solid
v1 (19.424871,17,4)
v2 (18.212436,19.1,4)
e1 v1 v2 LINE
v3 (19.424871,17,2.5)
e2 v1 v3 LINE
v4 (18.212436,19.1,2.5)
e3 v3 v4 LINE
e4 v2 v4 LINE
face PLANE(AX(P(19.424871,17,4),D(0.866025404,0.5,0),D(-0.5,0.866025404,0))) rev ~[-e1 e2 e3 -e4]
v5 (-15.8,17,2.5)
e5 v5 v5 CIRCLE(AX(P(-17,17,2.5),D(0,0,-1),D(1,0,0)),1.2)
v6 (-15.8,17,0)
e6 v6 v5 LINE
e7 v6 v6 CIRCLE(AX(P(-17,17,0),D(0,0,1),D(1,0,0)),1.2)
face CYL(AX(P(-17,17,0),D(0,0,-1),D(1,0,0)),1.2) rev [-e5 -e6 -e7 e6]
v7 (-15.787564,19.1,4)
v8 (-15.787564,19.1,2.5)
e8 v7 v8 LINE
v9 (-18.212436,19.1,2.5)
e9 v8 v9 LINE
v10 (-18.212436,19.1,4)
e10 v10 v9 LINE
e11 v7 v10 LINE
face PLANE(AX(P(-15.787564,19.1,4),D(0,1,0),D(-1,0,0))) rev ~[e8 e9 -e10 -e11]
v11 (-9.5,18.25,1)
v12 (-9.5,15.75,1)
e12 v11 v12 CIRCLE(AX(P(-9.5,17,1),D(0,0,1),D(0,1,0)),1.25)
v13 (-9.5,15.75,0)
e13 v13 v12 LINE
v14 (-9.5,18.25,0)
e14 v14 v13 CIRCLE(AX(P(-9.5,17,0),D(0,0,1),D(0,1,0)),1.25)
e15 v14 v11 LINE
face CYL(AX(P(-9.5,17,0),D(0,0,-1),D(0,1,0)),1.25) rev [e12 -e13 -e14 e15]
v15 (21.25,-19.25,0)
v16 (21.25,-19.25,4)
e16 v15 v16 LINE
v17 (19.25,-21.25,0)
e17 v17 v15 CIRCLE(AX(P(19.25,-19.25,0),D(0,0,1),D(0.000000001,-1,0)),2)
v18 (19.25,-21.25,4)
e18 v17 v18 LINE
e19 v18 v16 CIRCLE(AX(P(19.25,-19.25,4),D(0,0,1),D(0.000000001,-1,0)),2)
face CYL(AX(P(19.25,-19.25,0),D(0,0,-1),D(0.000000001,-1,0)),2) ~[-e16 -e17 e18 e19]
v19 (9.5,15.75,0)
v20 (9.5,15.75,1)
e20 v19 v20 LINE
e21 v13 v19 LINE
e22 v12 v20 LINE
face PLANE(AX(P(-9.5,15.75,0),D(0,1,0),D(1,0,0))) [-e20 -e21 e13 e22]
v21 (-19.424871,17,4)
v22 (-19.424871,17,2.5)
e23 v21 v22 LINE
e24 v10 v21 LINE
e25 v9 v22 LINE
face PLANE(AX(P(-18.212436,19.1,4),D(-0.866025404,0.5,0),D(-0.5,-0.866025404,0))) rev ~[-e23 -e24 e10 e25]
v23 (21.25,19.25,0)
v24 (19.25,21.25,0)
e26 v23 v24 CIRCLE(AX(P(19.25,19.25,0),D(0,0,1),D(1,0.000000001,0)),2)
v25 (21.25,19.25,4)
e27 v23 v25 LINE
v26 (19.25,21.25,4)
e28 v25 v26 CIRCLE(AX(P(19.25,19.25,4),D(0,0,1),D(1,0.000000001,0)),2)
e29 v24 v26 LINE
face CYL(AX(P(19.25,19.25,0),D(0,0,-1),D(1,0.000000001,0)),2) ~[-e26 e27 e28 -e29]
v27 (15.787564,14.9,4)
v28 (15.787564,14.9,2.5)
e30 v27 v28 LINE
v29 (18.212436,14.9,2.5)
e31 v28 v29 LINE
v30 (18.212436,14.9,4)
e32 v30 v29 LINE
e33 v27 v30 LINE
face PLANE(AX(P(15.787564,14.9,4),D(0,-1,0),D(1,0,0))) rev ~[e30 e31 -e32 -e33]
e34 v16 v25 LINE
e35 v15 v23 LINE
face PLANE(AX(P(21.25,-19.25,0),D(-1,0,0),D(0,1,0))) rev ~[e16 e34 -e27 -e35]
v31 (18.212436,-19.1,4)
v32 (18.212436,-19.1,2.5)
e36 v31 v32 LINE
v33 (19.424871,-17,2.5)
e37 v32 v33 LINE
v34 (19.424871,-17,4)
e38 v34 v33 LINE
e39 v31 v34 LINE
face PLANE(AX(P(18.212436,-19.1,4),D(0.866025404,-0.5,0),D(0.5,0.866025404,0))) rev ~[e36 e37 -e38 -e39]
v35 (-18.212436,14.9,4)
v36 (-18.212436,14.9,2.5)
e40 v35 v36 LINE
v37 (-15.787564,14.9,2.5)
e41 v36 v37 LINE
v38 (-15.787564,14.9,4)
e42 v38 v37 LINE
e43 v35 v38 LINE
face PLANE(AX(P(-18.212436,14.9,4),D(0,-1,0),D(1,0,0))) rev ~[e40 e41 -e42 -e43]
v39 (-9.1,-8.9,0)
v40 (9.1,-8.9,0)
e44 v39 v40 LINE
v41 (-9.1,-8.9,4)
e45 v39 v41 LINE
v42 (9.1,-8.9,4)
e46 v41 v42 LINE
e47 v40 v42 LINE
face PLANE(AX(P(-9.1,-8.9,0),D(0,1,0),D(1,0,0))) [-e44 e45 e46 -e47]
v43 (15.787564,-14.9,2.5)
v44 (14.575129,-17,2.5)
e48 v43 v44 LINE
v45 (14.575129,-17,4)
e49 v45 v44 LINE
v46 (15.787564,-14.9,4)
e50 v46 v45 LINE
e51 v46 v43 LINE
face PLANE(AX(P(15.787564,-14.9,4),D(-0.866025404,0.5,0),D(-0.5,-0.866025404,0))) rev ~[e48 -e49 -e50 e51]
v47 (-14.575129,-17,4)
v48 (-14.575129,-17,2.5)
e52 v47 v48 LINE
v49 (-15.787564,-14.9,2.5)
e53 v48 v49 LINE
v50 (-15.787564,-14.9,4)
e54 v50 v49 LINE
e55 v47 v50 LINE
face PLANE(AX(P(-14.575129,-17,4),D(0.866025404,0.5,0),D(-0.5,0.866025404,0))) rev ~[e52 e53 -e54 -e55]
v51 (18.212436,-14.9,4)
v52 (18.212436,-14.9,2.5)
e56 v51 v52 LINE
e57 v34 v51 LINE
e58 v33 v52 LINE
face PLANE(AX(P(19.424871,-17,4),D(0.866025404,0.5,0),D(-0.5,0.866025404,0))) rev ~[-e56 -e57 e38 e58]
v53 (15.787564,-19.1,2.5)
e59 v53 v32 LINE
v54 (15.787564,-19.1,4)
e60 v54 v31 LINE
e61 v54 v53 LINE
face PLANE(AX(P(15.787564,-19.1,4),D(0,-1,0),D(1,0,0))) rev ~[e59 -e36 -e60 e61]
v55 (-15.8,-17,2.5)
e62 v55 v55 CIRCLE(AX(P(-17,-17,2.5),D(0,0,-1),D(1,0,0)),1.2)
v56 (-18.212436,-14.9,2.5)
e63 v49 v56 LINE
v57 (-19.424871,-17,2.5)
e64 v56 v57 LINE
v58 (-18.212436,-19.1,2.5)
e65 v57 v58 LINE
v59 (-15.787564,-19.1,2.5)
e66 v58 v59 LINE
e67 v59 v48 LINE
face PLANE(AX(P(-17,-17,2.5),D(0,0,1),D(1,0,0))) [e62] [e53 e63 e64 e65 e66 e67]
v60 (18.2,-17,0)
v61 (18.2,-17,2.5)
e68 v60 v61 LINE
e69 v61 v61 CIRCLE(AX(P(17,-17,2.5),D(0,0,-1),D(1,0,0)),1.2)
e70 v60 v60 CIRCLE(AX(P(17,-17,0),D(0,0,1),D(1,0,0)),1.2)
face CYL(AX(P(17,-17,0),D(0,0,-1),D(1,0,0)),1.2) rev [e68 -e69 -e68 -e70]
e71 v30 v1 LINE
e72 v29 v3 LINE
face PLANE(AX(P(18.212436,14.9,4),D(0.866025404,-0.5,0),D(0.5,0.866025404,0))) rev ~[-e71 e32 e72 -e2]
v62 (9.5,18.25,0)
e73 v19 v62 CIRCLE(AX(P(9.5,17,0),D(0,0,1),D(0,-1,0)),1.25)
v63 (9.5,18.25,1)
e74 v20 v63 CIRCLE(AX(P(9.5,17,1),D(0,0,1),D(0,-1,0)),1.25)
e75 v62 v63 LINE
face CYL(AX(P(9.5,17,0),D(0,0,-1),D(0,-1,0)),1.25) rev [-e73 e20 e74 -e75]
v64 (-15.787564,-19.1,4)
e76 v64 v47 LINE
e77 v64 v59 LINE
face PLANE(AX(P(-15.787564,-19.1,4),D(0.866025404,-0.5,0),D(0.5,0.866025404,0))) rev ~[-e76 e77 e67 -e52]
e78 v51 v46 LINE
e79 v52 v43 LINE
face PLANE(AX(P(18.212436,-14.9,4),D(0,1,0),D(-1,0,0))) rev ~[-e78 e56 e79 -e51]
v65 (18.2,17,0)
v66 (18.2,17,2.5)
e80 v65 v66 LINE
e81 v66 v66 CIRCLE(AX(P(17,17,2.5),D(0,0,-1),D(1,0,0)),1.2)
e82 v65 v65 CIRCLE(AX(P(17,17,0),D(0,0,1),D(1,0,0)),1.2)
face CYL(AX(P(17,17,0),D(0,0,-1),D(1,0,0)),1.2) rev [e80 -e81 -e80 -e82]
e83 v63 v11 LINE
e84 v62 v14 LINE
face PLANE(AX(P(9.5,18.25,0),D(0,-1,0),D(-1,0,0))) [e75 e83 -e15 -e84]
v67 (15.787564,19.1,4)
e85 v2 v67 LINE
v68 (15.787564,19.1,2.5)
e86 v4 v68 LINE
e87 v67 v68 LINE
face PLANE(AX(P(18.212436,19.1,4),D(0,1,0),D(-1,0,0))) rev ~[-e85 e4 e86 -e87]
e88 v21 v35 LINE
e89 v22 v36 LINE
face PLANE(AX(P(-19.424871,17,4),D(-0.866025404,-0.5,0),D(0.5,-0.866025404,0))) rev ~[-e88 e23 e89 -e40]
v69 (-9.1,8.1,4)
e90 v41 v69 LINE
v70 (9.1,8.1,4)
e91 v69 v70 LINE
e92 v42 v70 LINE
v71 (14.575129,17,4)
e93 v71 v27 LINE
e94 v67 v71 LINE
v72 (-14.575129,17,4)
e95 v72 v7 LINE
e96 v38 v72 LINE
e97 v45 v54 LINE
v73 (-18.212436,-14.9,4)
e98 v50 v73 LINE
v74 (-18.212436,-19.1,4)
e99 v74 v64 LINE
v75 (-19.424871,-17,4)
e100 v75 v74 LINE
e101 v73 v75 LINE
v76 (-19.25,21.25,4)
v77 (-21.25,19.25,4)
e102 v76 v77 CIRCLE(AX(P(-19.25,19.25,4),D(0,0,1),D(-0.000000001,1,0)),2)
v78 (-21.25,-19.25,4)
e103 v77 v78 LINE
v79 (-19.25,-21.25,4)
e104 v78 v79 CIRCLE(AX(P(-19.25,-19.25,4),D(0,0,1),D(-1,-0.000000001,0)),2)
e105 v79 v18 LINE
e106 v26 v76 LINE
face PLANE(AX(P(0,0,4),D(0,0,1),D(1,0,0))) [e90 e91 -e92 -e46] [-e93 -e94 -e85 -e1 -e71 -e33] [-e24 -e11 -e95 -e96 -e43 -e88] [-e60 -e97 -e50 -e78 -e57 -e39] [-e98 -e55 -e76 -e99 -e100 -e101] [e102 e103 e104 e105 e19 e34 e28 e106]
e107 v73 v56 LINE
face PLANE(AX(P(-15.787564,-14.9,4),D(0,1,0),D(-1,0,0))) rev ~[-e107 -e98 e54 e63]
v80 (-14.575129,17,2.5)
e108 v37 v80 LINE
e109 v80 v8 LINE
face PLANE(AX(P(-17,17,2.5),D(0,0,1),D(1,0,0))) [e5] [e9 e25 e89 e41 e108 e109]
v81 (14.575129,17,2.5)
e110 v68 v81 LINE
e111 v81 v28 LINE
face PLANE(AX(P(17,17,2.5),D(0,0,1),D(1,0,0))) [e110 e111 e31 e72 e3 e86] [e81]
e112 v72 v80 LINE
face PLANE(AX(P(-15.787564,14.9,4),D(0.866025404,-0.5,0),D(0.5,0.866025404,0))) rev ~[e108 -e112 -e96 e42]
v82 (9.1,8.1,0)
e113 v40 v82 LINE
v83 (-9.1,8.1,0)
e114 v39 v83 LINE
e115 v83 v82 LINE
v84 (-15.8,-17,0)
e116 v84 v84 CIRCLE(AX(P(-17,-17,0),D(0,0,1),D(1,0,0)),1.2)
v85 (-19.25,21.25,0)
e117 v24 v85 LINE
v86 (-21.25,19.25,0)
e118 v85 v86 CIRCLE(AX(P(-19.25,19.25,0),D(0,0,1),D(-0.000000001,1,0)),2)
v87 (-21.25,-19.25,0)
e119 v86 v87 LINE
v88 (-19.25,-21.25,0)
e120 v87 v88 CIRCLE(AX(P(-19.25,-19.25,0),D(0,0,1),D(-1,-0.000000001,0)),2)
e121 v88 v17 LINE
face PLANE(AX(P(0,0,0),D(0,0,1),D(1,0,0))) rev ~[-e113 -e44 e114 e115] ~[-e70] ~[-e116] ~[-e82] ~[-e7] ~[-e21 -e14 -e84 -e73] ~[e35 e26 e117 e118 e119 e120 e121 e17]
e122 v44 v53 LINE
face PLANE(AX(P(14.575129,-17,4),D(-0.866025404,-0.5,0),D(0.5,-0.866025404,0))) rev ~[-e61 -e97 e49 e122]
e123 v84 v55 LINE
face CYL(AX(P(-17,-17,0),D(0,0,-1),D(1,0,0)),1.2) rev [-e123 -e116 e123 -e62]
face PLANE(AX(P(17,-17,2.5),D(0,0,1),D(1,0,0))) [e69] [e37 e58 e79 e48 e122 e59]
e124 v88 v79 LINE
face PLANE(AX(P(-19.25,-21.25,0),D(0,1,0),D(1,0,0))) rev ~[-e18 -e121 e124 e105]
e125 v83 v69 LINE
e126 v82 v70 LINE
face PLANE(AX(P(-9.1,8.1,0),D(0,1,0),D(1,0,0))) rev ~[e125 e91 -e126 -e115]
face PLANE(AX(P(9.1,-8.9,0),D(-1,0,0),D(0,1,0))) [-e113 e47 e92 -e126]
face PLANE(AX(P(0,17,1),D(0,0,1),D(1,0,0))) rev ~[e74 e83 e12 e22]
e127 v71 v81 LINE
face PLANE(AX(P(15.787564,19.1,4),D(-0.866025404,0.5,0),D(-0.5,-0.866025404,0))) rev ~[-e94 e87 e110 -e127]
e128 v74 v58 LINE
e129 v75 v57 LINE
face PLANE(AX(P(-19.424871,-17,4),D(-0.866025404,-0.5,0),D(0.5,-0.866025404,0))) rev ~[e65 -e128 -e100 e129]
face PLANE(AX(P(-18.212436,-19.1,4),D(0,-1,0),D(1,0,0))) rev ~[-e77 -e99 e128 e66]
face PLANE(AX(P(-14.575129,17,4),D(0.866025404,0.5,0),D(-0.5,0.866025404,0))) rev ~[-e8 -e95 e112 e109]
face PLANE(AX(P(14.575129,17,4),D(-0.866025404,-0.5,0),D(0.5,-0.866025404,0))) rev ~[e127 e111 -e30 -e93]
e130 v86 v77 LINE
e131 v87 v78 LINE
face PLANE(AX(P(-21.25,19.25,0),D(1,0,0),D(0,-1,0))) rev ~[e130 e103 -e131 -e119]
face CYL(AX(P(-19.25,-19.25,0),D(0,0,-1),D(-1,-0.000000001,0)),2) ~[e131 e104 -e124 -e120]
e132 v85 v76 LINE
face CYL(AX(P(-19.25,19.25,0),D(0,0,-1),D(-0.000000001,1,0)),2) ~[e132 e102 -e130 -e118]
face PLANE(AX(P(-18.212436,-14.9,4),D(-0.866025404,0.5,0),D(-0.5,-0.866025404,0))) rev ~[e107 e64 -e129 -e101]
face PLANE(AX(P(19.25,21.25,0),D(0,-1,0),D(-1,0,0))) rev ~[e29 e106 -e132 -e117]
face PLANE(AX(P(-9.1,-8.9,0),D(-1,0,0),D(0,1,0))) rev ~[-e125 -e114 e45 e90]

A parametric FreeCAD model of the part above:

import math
import FreeCAD as App
import Part
import Sketcher
Q = App.Units.Quantity

doc = App.newDocument("Part")
body = doc.addObject("PartDesign::Body", "Body")

# Sketch on XY plane
sketch1 = body.newObject("Sketcher::SketchObject", "Sketch")
sketch1.AttachmentSupport = (doc.getObject("XY_Plane"), [""])
sketch1.MapMode = "FlatFace"
sketch1.addGeometry([
    Part.LineSegment(App.Vector(21.2, -19.2, 0), App.Vector(21.2, 19.2, 0)),  # 0
    Part.ArcOfCircle(Part.Circle(App.Vector(19.2, 19.2, 0), App.Vector(0, 0, 1), 2), math.radians(0), math.radians(90)),  # 1
    Part.LineSegment(App.Vector(19.2, 21.2, 0), App.Vector(-19.2, 21.2, 0)),  # 2
    Part.ArcOfCircle(Part.Circle(App.Vector(-19.2, 19.2, 0), App.Vector(0, 0, 1), 2), math.radians(90), math.radians(180)),  # 3
    Part.LineSegment(App.Vector(-21.2, 19.2, 0), App.Vector(-21.2, -19.2, 0)),  # 4
    Part.ArcOfCircle(Part.Circle(App.Vector(-19.2, -19.2, 0), App.Vector(0, 0, 1), 2), math.radians(-180), math.radians(-90)),  # 5
    Part.LineSegment(App.Vector(-19.2, -21.2, 0), App.Vector(19.2, -21.2, 0)),  # 6
    Part.ArcOfCircle(Part.Circle(App.Vector(19.2, -19.2, 0), App.Vector(0, 0, 1), 2), math.radians(-90), math.radians(0)),  # 7
    Part.Circle(App.Vector(-17, -17, 0), App.Vector(0, 0, 1), 1.2),  # 8
    Part.LineSegment(App.Vector(9.1, -8.9, 0), App.Vector(-9.1, -8.9, 0)),  # 9
    Part.LineSegment(App.Vector(-9.1, -8.9, 0), App.Vector(-9.1, 8.1, 0)),  # 10
    Part.LineSegment(App.Vector(-9.1, 8.1, 0), App.Vector(9.1, 8.1, 0)),  # 11
    Part.LineSegment(App.Vector(9.1, 8.1, 0), App.Vector(9.1, -8.9, 0)),  # 12
    Part.Circle(App.Vector(17, -17, 0), App.Vector(0, 0, 1), 1.2),  # 13
    Part.Circle(App.Vector(-17, 17, 0), App.Vector(0, 0, 1), 1.2),  # 14
    Part.Circle(App.Vector(17, 17, 0), App.Vector(0, 0, 1), 1.2),  # 15
], False)
sketch1.addConstraint([
    Sketcher.Constraint("Tangent", 0, 2, 1, 1),
    Sketcher.Constraint("Tangent", 1, 2, 2, 1),
    Sketcher.Constraint("Tangent", 2, 2, 3, 1),
    Sketcher.Constraint("Tangent", 3, 2, 4, 1),
    Sketcher.Constraint("Tangent", 4, 2, 5, 1),
    Sketcher.Constraint("Tangent", 5, 2, 6, 1),
    Sketcher.Constraint("Tangent", 6, 2, 7, 1),
    Sketcher.Constraint("Tangent", 7, 2, 0, 1),
    Sketcher.Constraint("Coincident", 9, 2, 10, 1),
    Sketcher.Constraint("Coincident", 10, 2, 11, 1),
    Sketcher.Constraint("Coincident", 11, 2, 12, 1),
    Sketcher.Constraint("Coincident", 12, 2, 9, 1),
    Sketcher.Constraint("Vertical", 0),
    Sketcher.Constraint("Horizontal", 2),
    Sketcher.Constraint("Vertical", 4),
    Sketcher.Constraint("Horizontal", 6),
    Sketcher.Constraint("Horizontal", 9),
    Sketcher.Constraint("Vertical", 10),
    Sketcher.Constraint("Horizontal", 11),
    Sketcher.Constraint("Vertical", 12),
    Sketcher.Constraint("Equal", 1, 3),
    Sketcher.Constraint("Equal", 3, 5),
    Sketcher.Constraint("Equal", 5, 7),
    Sketcher.Constraint("Equal", 8, 13),
    Sketcher.Constraint("Equal", 13, 14),
    Sketcher.Constraint("Equal", 14, 15),
    Sketcher.Constraint("Symmetric", 1, 3, 5, 3, -1, 1),
    Sketcher.Constraint("Symmetric", 13, 3, 14, 3, -1, 1),
    Sketcher.Constraint("Symmetric", 8, 3, 15, 3, -1, 1),
    Sketcher.Constraint("Symmetric", 8, 3, 13, 3, -2),
    Sketcher.Constraint("Equal", 6, 0),
    Sketcher.Constraint("Radius", 1, Q("2 mm")),
    Sketcher.Constraint("Diameter", 8, Q("2.4 mm")),
    Sketcher.Constraint("DistanceY", 10, 1, 10, 2, Q("17 mm")),
    Sketcher.Constraint("DistanceX", 2, 2, 2, 1, Q("38.5 mm")),
    Sketcher.Constraint("DistanceX", 9, 2, 9, 1, Q("18.2 mm")),
    Sketcher.Constraint("DistanceX", 8, 3, -1, 1, Q("17 mm")),
    Sketcher.Constraint("DistanceY", 8, 3, -1, 1, Q("17 mm")),
    Sketcher.Constraint("DistanceX", 9, 2, -1, 1, Q("9.1 mm")),
    Sketcher.Constraint("DistanceY", 9, 2, -1, 1, Q("8.9 mm")),
])
pad1 = body.newObject("PartDesign::Pad", "Pad")
pad1.Profile = sketch1
pad1.Length = 4

# Sketch on XY plane
sketch2 = body.newObject("Sketcher::SketchObject", "Sketch001")
sketch2.AttachmentSupport = (doc.getObject("XY_Plane"), [""])
sketch2.MapMode = "FlatFace"
sketch2.addGeometry([
    Part.LineSegment(App.Vector(-9.5, 18.2, 0), App.Vector(9.5, 18.2, 0)),
    Part.ArcOfCircle(Part.Circle(App.Vector(9.5, 17, 0), App.Vector(0, 0, 1), 1.2), math.radians(-90), math.radians(90)),
    Part.LineSegment(App.Vector(9.5, 15.8, 0), App.Vector(-9.5, 15.8, 0)),
    Part.ArcOfCircle(Part.Circle(App.Vector(-9.5, 17, 0), App.Vector(0, 0, 1), 1.2), math.radians(90), math.radians(270)),
], False)
sketch2.addConstraint([
    Sketcher.Constraint("Tangent", 0, 2, 1, 2),
    Sketcher.Constraint("Tangent", 1, 1, 2, 1),
    Sketcher.Constraint("Tangent", 2, 2, 3, 2),
    Sketcher.Constraint("Tangent", 3, 1, 0, 1),
    Sketcher.Constraint("Horizontal", 0),
    Sketcher.Constraint("Horizontal", 2),
    Sketcher.Constraint("DistanceX", 0, 1, 0, 2, Q("19 mm")),
    Sketcher.Constraint("Radius", 1, Q("1.25 mm")),
    Sketcher.Constraint("DistanceY", -1, 1, 1, 3, Q("17 mm")),
    Sketcher.Constraint("DistanceX", -1, 1, 1, 3, Q("9.5 mm")),
])
pocket1 = body.newObject("PartDesign::Pocket", "Pocket")
pocket1.Profile = sketch2
pocket1.Length = 1
pocket1.Reversed = True

# Sketch on XY plane
sketch3 = body.newObject("Sketcher::SketchObject", "Sketch002")
sketch3.AttachmentSupport = (doc.getObject("XY_Plane"), [""])
sketch3.MapMode = "FlatFace"
sketch3.AttachmentOffset = App.Placement(App.Vector(0, 0, 4), App.Rotation())
sketch3.addGeometry([
    Part.LineSegment(App.Vector(-18.2, -14.9, 0), App.Vector(-19.4, -17, 0)),  # 0
    Part.LineSegment(App.Vector(-19.4, -17, 0), App.Vector(-18.2, -19.1, 0)),  # 1
    Part.LineSegment(App.Vector(-18.2, -19.1, 0), App.Vector(-15.8, -19.1, 0)),  # 2
    Part.LineSegment(App.Vector(-15.8, -19.1, 0), App.Vector(-14.6, -17, 0)),  # 3
    Part.LineSegment(App.Vector(-14.6, -17, 0), App.Vector(-15.8, -14.9, 0)),  # 4
    Part.LineSegment(App.Vector(-15.8, -14.9, 0), App.Vector(-18.2, -14.9, 0)),  # 5
    Part.LineSegment(App.Vector(15.8, -14.9, 0), App.Vector(14.6, -17, 0)),  # 6
    Part.LineSegment(App.Vector(14.6, -17, 0), App.Vector(15.8, -19.1, 0)),  # 7
    Part.LineSegment(App.Vector(15.8, -19.1, 0), App.Vector(18.2, -19.1, 0)),  # 8
    Part.LineSegment(App.Vector(18.2, -19.1, 0), App.Vector(19.4, -17, 0)),  # 9
    Part.LineSegment(App.Vector(19.4, -17, 0), App.Vector(18.2, -14.9, 0)),  # 10
    Part.LineSegment(App.Vector(18.2, -14.9, 0), App.Vector(15.8, -14.9, 0)),  # 11
    Part.LineSegment(App.Vector(-18.2, 19.1, 0), App.Vector(-19.4, 17, 0)),  # 12
    Part.LineSegment(App.Vector(-19.4, 17, 0), App.Vector(-18.2, 14.9, 0)),  # 13
    Part.LineSegment(App.Vector(-18.2, 14.9, 0), App.Vector(-15.8, 14.9, 0)),  # 14
    Part.LineSegment(App.Vector(-15.8, 14.9, 0), App.Vector(-14.6, 17, 0)),  # 15
    Part.LineSegment(App.Vector(-14.6, 17, 0), App.Vector(-15.8, 19.1, 0)),  # 16
    Part.LineSegment(App.Vector(-15.8, 19.1, 0), App.Vector(-18.2, 19.1, 0)),  # 17
    Part.LineSegment(App.Vector(15.8, 19.1, 0), App.Vector(14.6, 17, 0)),  # 18
    Part.LineSegment(App.Vector(14.6, 17, 0), App.Vector(15.8, 14.9, 0)),  # 19
    Part.LineSegment(App.Vector(15.8, 14.9, 0), App.Vector(18.2, 14.9, 0)),  # 20
    Part.LineSegment(App.Vector(18.2, 14.9, 0), App.Vector(19.4, 17, 0)),  # 21
    Part.LineSegment(App.Vector(19.4, 17, 0), App.Vector(18.2, 19.1, 0)),  # 22
    Part.LineSegment(App.Vector(18.2, 19.1, 0), App.Vector(15.8, 19.1, 0)),  # 23
], False)
sketch3.addConstraint([
    Sketcher.Constraint("Coincident", 0, 2, 1, 1),
    Sketcher.Constraint("Coincident", 1, 2, 2, 1),
    Sketcher.Constraint("Coincident", 2, 2, 3, 1),
    Sketcher.Constraint("Coincident", 3, 2, 4, 1),
    Sketcher.Constraint("Coincident", 4, 2, 5, 1),
    Sketcher.Constraint("Coincident", 5, 2, 0, 1),
    Sketcher.Constraint("Coincident", 6, 2, 7, 1),
    Sketcher.Constraint("Coincident", 7, 2, 8, 1),
    Sketcher.Constraint("Coincident", 8, 2, 9, 1),
    Sketcher.Constraint("Coincident", 9, 2, 10, 1),
    Sketcher.Constraint("Coincident", 10, 2, 11, 1),
    Sketcher.Constraint("Coincident", 11, 2, 6, 1),
    Sketcher.Constraint("Coincident", 12, 2, 13, 1),
    Sketcher.Constraint("Coincident", 13, 2, 14, 1),
    Sketcher.Constraint("Coincident", 14, 2, 15, 1),
    Sketcher.Constraint("Coincident", 15, 2, 16, 1),
    Sketcher.Constraint("Coincident", 16, 2, 17, 1),
    Sketcher.Constraint("Coincident", 17, 2, 12, 1),
    Sketcher.Constraint("Coincident", 18, 2, 19, 1),
    Sketcher.Constraint("Coincident", 19, 2, 20, 1),
    Sketcher.Constraint("Coincident", 20, 2, 21, 1),
    Sketcher.Constraint("Coincident", 21, 2, 22, 1),
    Sketcher.Constraint("Coincident", 22, 2, 23, 1),
    Sketcher.Constraint("Coincident", 23, 2, 18, 1),
    Sketcher.Constraint("Horizontal", 2),
    Sketcher.Constraint("Horizontal", 5),
    Sketcher.Constraint("Horizontal", 8),
    Sketcher.Constraint("Horizontal", 11),
    Sketcher.Constraint("Horizontal", 14),
    Sketcher.Constraint("Horizontal", 17),
    Sketcher.Constraint("Horizontal", 20),
    Sketcher.Constraint("Horizontal", 23),
    Sketcher.Constraint("Symmetric", 9, 2, 12, 2, -1, 1),
    Sketcher.Constraint("Symmetric", 10, 2, 13, 2, -1, 1),
    Sketcher.Constraint("Symmetric", 6, 2, 15, 2, -1, 1),
    Sketcher.Constraint("Symmetric", 7, 2, 16, 2, -1, 1),
    Sketcher.Constraint("Symmetric", 3, 2, 18, 2, -1, 1),
    Sketcher.Constraint("Symmetric", 4, 2, 19, 2, -1, 1),
    Sketcher.Constraint("Symmetric", 0, 2, 21, 2, -1, 1),
    Sketcher.Constraint("Symmetric", 1, 2, 22, 2, -1, 1),
    Sketcher.Constraint("Symmetric", 3, 2, 6, 2, -2),
    Sketcher.Constraint("Symmetric", 2, 2, 7, 2, -2),
    Sketcher.Constraint("Symmetric", 0, 2, 9, 2, -2),
    Sketcher.Constraint("Symmetric", 5, 2, 10, 2, -2),
    Sketcher.Constraint("Parallel", 0, 3),
    Sketcher.Constraint("Parallel", 1, 4),
    Sketcher.Constraint("Parallel", 3, 6),
    Sketcher.Constraint("Parallel", 4, 7),
    Sketcher.Constraint("Parallel", 6, 9),
    Sketcher.Constraint("Parallel", 9, 12),
    Sketcher.Constraint("Parallel", 12, 15),
    Sketcher.Constraint("Parallel", 15, 18),
    Sketcher.Constraint("Parallel", 18, 21),
    Sketcher.Constraint("Horizontal", 0, 2, 3, 2),
    Sketcher.Constraint("Vertical", 2, 2, 4, 2),
    Sketcher.Constraint("Angle", 0, Q("-120 deg")),
    Sketcher.Constraint("DistanceY", 0, 2, -1, 1, Q("17 mm")),
    Sketcher.Constraint("DistanceX", 1, 2, 7, 2, Q("34 mm")),
    Sketcher.Constraint("DistanceY", 1, 2, -1, 1, Q("19.1 mm")),
    Sketcher.Constraint("DistanceX", 2, 1, 2, 2, Q("2.424871 mm")),
])
pocket2 = body.newObject("PartDesign::Pocket", "Pocket001")
pocket2.Profile = sketch3
pocket2.Length = 1.5

doc.recompute()
